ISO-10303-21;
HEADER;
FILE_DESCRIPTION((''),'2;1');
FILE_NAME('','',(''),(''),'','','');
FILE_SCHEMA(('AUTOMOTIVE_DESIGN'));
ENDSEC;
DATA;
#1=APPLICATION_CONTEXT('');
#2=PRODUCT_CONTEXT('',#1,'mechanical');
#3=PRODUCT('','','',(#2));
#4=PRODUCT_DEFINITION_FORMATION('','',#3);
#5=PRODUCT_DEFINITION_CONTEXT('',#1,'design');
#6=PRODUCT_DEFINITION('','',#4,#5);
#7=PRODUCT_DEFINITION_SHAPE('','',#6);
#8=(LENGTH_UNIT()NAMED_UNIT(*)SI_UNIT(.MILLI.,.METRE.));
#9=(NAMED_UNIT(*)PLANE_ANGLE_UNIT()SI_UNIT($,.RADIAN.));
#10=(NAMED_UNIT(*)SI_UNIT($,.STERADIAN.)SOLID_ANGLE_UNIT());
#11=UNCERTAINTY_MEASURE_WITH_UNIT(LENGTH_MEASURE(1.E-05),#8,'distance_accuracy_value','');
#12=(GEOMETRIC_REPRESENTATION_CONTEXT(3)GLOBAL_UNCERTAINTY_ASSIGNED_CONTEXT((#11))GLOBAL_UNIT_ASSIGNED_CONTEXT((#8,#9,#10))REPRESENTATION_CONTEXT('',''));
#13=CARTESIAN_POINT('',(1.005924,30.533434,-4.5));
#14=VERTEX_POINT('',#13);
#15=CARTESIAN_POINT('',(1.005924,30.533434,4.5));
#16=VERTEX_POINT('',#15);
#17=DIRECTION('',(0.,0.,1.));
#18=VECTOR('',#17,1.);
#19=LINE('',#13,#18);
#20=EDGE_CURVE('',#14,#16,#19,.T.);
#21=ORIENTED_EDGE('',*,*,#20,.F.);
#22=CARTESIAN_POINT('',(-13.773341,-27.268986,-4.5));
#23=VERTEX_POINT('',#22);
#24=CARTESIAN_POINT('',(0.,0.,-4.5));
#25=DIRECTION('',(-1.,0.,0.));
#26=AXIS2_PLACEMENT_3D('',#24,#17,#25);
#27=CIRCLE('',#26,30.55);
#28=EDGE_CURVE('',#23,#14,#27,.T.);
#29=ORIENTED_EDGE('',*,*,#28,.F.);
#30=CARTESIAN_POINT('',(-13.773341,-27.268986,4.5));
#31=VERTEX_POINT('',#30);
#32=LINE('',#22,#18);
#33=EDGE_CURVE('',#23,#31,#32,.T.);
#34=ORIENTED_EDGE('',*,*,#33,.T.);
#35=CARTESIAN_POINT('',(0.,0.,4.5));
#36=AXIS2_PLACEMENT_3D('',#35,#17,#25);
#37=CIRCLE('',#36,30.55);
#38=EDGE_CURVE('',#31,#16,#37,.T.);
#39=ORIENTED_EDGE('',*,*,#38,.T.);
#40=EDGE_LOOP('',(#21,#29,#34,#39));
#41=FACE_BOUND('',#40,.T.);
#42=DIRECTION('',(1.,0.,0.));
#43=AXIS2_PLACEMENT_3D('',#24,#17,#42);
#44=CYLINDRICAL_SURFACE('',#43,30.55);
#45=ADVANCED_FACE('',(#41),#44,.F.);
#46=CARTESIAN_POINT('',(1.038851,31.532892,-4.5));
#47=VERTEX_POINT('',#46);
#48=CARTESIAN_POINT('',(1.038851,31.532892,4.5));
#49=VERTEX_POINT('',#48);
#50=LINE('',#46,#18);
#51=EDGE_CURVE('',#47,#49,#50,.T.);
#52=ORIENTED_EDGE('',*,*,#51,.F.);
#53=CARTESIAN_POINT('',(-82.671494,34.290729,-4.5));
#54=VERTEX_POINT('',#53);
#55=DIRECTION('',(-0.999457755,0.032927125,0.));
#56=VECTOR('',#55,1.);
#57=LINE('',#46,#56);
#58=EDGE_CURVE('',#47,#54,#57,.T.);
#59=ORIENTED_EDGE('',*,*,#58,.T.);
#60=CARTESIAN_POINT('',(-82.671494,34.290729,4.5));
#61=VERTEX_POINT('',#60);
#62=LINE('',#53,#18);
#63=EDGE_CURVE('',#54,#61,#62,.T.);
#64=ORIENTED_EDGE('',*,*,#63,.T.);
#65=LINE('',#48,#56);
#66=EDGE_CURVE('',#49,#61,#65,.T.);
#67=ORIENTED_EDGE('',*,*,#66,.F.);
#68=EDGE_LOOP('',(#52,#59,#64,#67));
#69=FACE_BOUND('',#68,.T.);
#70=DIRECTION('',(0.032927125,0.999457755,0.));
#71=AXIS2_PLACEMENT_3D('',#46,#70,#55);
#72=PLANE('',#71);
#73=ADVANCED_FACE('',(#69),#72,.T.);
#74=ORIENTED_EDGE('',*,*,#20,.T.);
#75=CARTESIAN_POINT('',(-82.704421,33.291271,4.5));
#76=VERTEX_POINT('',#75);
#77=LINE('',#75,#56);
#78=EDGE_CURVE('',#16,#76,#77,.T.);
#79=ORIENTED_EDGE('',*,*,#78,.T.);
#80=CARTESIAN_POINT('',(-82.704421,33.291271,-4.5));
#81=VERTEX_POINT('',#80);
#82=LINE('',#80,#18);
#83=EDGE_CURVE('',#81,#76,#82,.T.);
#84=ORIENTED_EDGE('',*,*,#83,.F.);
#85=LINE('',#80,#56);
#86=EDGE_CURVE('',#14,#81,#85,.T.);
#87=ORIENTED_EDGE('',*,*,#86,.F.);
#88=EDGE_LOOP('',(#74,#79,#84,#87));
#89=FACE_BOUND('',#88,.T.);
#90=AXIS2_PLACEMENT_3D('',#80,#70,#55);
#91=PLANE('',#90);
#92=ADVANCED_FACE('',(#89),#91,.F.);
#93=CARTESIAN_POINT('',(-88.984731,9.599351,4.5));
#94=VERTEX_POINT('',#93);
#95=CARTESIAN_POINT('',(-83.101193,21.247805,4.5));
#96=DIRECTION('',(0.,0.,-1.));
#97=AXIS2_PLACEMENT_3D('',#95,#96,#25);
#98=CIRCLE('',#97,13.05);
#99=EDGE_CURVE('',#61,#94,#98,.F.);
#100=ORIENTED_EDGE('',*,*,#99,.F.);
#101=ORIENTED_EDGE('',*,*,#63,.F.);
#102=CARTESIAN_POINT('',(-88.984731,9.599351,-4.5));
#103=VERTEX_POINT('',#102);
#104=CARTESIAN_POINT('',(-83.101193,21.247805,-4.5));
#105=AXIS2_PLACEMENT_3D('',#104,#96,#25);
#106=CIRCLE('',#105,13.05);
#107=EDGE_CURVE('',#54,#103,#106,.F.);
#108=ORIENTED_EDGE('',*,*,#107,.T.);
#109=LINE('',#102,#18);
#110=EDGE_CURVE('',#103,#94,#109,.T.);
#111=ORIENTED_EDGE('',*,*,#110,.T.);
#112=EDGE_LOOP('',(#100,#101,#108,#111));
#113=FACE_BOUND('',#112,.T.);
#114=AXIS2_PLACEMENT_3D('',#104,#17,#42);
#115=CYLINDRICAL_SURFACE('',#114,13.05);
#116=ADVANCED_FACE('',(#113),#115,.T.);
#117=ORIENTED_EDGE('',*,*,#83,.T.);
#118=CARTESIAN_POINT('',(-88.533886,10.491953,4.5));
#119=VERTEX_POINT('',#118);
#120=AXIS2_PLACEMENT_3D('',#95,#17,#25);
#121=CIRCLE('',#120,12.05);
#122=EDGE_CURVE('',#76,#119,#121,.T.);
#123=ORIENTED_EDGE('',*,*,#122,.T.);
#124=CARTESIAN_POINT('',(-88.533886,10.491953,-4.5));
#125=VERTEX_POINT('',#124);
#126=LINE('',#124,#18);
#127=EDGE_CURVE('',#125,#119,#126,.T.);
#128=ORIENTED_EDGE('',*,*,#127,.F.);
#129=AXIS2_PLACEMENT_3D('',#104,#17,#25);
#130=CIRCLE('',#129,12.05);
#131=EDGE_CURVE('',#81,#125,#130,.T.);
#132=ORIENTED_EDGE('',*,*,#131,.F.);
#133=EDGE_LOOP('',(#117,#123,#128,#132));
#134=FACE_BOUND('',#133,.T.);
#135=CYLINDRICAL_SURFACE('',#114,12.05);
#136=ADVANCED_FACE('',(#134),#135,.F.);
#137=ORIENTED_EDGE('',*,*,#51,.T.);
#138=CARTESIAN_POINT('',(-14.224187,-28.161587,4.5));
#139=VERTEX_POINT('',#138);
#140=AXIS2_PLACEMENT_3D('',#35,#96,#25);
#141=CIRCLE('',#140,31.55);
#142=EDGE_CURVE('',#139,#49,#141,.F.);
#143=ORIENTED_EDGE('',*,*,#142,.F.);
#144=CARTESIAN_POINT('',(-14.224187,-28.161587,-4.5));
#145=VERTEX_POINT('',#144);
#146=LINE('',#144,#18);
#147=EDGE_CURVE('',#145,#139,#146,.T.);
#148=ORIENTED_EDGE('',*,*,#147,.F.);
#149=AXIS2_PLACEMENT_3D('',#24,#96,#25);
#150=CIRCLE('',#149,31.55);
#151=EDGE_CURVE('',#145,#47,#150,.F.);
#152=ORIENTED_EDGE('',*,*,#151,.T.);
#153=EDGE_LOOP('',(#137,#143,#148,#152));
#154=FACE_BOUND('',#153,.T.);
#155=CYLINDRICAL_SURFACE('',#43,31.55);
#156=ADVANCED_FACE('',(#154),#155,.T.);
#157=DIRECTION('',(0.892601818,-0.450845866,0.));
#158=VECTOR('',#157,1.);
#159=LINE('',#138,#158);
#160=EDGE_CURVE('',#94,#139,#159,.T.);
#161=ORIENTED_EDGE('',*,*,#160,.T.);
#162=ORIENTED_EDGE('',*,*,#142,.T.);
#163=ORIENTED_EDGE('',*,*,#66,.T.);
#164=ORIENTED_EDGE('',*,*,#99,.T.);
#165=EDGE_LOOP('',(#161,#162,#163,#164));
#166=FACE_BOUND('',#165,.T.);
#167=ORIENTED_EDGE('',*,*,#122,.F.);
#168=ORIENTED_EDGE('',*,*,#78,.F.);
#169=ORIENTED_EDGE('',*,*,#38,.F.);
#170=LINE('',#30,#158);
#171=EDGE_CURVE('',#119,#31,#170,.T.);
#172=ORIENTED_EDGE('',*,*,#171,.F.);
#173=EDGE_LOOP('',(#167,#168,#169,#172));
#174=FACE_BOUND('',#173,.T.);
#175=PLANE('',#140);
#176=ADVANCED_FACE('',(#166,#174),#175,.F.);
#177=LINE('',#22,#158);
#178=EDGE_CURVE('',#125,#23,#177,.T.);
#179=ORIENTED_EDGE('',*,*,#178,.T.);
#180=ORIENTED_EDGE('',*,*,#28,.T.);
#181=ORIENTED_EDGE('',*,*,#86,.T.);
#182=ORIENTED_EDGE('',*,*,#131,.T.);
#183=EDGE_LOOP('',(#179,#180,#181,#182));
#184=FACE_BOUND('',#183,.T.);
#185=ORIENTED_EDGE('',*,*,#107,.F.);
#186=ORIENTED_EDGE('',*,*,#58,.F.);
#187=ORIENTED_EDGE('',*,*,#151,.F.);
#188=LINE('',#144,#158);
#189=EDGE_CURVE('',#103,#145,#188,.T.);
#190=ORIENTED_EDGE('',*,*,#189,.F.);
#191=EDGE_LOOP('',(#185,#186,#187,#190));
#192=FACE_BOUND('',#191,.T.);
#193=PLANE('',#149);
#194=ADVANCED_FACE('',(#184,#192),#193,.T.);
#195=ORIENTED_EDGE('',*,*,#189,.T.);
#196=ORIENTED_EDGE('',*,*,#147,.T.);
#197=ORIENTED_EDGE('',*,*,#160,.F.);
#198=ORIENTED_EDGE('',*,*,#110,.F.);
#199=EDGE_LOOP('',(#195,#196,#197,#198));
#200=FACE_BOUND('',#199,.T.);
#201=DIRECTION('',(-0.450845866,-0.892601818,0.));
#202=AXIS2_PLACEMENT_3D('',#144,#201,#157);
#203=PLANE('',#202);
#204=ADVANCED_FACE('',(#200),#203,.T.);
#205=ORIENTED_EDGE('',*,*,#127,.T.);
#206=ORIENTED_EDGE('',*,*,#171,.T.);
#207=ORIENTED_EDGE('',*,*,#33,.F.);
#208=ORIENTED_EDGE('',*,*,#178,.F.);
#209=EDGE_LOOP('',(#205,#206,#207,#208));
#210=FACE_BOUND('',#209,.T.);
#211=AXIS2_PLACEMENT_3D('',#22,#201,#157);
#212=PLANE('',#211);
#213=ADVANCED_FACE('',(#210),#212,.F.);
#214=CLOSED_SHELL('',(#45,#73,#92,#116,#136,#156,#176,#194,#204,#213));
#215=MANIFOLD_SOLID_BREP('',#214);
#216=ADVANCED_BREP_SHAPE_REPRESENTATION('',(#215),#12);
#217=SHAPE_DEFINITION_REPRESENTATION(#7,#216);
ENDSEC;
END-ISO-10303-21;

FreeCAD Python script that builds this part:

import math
import FreeCAD as App
import Part
import Sketcher

V = App.Vector
Q = App.Units.Quantity

doc = App.newDocument("Part")
params = doc.addObject("Spreadsheet::Sheet", "Params")
for row, (alias, value) in enumerate([
    ("sketch1_radius", "13.05 mm"),
    ("sketch1_radius2", "31.55 mm"),
    ("sketch1_radius3", "30.55 mm"),
    ("pad1_length", "4.5 mm"),
    ("pad1_length2", "4.5 mm"),
], start=1):
    params.set(f"A{row}", alias)
    params.set(f"B{row}", "=" + value)
    params.setAlias(f"B{row}", alias)

body = doc.addObject("PartDesign::Body", "Body")

# Sketch on XY plane
sketch1 = body.newObject("Sketcher::SketchObject", "Sketch")
sketch1.AttachmentSupport = (doc.getObject("XY_Plane"), [""])
sketch1.MapMode = "FlatFace"
sketch1.addGeometry([
    Part.LineSegment(V(1, 32, 0), V(-83, 34, 0)),  # 0
    Part.ArcOfCircle(Part.Circle(V(-83, 21, 0), V(0, 0, 1), 13), math.radians(88), math.radians(243)),  # 1
    Part.LineSegment(V(-89, 10, 0), V(-14, -28, 0)),  # 2
    Part.ArcOfCircle(Part.Circle(V(0, 0, 0), V(0, 0, 1), 32), math.radians(-117), math.radians(88)),  # 3
    Part.LineSegment(V(-83, 33, 0), V(1, 31, 0)),  # 4
    Part.ArcOfCircle(Part.Circle(V(0, 0, 0), V(0, 0, 1), 31), math.radians(-117), math.radians(88)),  # 5
    Part.LineSegment(V(-14, -27, 0), V(-89, 10, 0)),  # 6
    Part.ArcOfCircle(Part.Circle(V(-83, 21, 0), V(0, 0, 1), 12), math.radians(88), math.radians(243)),  # 7
], False)
sketch1.addConstraint([
    Sketcher.Constraint("Tangent", 0, 2, 1, 1),
    Sketcher.Constraint("Tangent", 1, 2, 2, 1),
    Sketcher.Constraint("Tangent", 2, 2, 3, 1),
    Sketcher.Constraint("Tangent", 3, 2, 0, 1),
    Sketcher.Constraint("Tangent", 4, 2, 5, 2),
    Sketcher.Constraint("Tangent", 5, 1, 6, 1),
    Sketcher.Constraint("Tangent", 6, 2, 7, 2),
    Sketcher.Constraint("Tangent", 7, 1, 4, 1),
    Sketcher.Constraint("Coincident", 3, 3, -1, 1),
    Sketcher.Constraint("Coincident", 5, 3, -1, 1),
    Sketcher.Constraint("Coincident", 7, 3, 1, 3),
    Sketcher.Constraint("Parallel", 0, 4),
    Sketcher.Constraint("Radius", 1, Q("13.05 mm")),
    Sketcher.Constraint("Radius", 3, Q("31.55 mm")),
    Sketcher.Constraint("Radius", 5, Q("30.55 mm")),
    Sketcher.Constraint("DistanceX", 1, 3, 0, 2, Q("0.429699 mm")),
    Sketcher.Constraint("Distance", 0, Q("83.755761 mm")),
])
sketch1.setExpression("Constraints[12]", "Params.sketch1_radius")
sketch1.setExpression("Constraints[13]", "Params.sketch1_radius2")
sketch1.setExpression("Constraints[14]", "Params.sketch1_radius3")
pad1 = body.newObject("PartDesign::Pad", "Pad")
pad1.Profile = sketch1
pad1.Type = "TwoLengths"
pad1.setExpression("Length", "Params.pad1_length")
pad1.setExpression("Length2", "Params.pad1_length2")

doc.recompute()
